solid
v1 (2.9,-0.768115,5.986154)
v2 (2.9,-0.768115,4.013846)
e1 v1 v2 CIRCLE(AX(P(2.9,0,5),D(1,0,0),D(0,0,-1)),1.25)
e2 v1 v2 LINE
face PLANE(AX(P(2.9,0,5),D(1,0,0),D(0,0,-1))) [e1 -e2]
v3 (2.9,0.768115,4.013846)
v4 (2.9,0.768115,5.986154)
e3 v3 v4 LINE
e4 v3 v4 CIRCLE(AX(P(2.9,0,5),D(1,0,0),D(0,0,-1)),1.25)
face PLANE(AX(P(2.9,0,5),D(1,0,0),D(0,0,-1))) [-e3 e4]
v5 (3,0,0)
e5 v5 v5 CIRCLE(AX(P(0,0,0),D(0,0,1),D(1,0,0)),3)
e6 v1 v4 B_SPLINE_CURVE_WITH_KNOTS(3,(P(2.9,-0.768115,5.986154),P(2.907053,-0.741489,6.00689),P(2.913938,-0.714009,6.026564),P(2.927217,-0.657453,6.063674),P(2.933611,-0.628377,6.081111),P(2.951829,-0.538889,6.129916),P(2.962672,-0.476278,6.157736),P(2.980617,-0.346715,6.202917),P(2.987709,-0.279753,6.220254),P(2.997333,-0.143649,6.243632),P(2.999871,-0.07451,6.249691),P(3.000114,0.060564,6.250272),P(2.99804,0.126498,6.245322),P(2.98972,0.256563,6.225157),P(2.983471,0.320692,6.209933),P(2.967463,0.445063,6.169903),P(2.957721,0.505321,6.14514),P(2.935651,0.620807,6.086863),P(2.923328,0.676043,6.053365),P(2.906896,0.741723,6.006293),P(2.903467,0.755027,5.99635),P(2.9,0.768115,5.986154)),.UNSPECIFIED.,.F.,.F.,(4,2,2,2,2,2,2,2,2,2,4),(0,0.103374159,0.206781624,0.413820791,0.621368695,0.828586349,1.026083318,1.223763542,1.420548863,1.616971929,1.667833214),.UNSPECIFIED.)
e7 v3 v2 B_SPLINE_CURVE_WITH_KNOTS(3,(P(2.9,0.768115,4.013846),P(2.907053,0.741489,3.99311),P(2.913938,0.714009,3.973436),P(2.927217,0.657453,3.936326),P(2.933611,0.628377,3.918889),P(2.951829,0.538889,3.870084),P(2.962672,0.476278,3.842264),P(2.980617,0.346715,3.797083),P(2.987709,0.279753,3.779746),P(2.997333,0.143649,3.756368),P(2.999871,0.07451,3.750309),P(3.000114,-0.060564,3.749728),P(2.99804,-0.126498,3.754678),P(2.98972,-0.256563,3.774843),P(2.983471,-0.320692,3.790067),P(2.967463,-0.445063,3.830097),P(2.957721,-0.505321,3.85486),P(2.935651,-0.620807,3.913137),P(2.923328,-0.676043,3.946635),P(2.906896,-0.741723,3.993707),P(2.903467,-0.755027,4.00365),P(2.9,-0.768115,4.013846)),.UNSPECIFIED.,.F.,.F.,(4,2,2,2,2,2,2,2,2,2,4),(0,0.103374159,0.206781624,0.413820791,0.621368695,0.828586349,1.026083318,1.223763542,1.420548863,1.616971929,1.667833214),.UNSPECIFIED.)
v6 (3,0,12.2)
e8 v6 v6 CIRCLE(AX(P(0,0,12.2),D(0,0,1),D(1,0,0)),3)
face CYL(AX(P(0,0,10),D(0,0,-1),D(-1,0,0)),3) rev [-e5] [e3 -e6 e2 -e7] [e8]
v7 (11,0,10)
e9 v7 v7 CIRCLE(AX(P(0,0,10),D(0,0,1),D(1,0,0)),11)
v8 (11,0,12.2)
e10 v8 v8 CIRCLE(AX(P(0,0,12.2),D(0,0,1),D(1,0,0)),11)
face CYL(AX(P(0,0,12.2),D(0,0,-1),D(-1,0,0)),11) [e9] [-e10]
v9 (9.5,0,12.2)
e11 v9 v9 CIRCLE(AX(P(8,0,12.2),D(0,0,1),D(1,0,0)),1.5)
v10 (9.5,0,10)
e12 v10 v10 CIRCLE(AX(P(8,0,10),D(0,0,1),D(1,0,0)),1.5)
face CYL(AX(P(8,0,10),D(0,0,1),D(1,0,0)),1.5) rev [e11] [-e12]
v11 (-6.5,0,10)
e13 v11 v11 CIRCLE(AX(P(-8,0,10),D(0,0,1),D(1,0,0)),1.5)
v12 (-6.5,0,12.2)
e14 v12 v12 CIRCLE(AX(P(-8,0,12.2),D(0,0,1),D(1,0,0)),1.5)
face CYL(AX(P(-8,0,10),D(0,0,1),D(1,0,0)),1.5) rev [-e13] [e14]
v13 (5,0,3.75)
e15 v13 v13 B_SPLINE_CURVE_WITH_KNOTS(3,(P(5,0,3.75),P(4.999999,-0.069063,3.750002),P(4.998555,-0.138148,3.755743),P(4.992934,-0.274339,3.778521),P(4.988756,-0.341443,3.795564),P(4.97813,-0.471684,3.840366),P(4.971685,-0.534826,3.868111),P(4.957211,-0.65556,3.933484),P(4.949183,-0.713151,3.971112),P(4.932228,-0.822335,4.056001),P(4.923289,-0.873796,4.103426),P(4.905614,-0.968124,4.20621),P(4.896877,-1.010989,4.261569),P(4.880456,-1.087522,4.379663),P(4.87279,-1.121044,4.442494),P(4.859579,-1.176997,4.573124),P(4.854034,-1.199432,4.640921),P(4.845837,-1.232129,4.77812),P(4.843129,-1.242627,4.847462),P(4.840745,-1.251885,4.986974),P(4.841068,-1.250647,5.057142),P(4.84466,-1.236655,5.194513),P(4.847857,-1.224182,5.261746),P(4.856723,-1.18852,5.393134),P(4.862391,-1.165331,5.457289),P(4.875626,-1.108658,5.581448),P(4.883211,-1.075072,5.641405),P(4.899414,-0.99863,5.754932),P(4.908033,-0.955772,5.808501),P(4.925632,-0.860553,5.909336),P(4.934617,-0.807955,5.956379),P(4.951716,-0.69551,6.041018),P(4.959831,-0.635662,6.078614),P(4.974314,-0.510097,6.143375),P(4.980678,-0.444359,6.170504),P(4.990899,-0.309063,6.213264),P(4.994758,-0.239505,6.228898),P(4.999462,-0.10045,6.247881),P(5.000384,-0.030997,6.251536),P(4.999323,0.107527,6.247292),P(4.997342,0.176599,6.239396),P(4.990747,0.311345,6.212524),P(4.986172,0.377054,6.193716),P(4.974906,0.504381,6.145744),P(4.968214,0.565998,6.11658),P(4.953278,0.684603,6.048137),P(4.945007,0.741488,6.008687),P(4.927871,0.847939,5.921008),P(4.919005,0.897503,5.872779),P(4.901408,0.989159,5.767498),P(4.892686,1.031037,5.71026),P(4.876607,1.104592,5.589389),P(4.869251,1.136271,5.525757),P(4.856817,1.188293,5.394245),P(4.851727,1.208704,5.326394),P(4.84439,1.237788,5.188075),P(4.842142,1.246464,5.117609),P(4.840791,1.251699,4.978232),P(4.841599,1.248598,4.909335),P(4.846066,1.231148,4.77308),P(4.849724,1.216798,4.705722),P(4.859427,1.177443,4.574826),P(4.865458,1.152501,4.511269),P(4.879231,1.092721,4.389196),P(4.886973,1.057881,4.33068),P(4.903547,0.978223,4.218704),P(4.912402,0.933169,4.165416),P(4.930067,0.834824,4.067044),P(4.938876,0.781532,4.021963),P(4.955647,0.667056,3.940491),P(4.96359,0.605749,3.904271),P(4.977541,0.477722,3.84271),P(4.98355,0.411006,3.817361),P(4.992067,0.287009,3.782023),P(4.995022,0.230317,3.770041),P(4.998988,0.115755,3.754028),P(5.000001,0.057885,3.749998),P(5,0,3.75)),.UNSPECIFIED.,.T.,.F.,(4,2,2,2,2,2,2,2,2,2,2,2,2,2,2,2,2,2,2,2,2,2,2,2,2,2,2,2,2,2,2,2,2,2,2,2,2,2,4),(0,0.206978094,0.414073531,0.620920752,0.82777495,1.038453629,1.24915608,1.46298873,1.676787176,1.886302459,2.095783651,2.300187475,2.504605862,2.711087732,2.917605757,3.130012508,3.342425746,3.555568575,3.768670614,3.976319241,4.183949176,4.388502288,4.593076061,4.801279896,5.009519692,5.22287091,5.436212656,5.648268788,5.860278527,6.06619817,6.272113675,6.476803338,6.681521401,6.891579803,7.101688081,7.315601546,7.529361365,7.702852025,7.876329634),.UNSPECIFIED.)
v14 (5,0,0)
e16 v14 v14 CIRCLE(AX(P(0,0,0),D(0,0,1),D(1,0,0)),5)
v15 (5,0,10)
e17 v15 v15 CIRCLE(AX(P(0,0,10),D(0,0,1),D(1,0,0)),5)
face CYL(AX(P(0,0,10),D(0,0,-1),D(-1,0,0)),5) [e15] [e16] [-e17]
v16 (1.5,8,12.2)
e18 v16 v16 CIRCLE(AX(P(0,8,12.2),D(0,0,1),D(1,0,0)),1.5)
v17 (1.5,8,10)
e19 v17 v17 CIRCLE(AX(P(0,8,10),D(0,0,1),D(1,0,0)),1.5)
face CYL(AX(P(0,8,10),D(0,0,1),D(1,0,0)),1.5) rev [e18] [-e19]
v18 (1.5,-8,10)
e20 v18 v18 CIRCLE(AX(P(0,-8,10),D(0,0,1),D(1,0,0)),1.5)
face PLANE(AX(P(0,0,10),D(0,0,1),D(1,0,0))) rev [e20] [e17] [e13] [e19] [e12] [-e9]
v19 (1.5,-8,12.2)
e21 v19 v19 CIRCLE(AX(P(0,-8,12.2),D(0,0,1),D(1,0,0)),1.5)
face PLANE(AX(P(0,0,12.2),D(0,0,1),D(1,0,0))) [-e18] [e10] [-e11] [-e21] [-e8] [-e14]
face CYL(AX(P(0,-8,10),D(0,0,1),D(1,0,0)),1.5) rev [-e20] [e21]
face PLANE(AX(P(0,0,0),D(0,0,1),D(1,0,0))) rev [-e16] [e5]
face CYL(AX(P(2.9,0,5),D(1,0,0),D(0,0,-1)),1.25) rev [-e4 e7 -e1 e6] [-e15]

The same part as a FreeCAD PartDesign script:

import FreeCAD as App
import Part
import Sketcher
Q = App.Units.Quantity

doc = App.newDocument("Part")
body = doc.addObject("PartDesign::Body", "Body")

# Sketch on XY plane
sketch1 = body.newObject("Sketcher::SketchObject", "Sketch")
sketch1.AttachmentSupport = (doc.getObject("XY_Plane"), [""])
sketch1.MapMode = "FlatFace"
sketch1.addGeometry([
    Part.Circle(App.Vector(0, 0, 0), App.Vector(0, 0, 1), 5),
    Part.Circle(App.Vector(0, 0, 0), App.Vector(0, 0, 1), 3),
], False)
sketch1.addConstraint([
    Sketcher.Constraint("Coincident", 0, 3, -1, 1),
    Sketcher.Constraint("Coincident", 1, 3, -1, 1),
    Sketcher.Constraint("Diameter", 0, Q("10 mm")),
    Sketcher.Constraint("Diameter", 1, Q("6 mm")),
])
pad1 = body.newObject("PartDesign::Pad", "Pad")
pad1.Profile = sketch1
pad1.Length = 10

# Sketch on XY plane
sketch2 = body.newObject("Sketcher::SketchObject", "Sketch001")
sketch2.AttachmentSupport = (doc.getObject("XY_Plane"), [""])
sketch2.MapMode = "FlatFace"
sketch2.AttachmentOffset = App.Placement(App.Vector(0, 0, 10), App.Rotation())
sketch2.addGeometry([
    Part.Circle(App.Vector(0, 0, 0), App.Vector(0, 0, 1), 11),
    Part.Circle(App.Vector(0, 0, 0), App.Vector(0, 0, 1), 3),
], False)
sketch2.addConstraint([
    Sketcher.Constraint("Coincident", 0, 3, -1, 1),
    Sketcher.Constraint("Coincident", 1, 3, -1, 1),
    Sketcher.Constraint("Diameter", 0, Q("22 mm")),
    Sketcher.Constraint("Diameter", 1, Q("6 mm")),
])
pad2 = body.newObject("PartDesign::Pad", "Pad001")
pad2.Profile = sketch2
pad2.Length = 2.2

# Sketch on XY plane
sketch3 = body.newObject("Sketcher::SketchObject", "Sketch002")
sketch3.AttachmentSupport = (doc.getObject("XY_Plane"), [""])
sketch3.MapMode = "FlatFace"
sketch3.AttachmentOffset = App.Placement(App.Vector(0, 0, 12.2), App.Rotation())
sketch3.addGeometry([
    Part.Circle(App.Vector(8, 0, 0), App.Vector(0, 0, 1), 1.5),
    Part.Circle(App.Vector(0, 8, 0), App.Vector(0, 0, 1), 1.5),
    Part.Circle(App.Vector(-8, 0, 0), App.Vector(0, 0, 1), 1.5),
    Part.Circle(App.Vector(0, -8, 0), App.Vector(0, 0, 1), 1.5),
], False)
sketch3.addConstraint([
    Sketcher.Constraint("Equal", 0, 1),
    Sketcher.Constraint("Equal", 1, 2),
    Sketcher.Constraint("Equal", 2, 3),
    Sketcher.Constraint("Symmetric", 0, 3, 2, 3, -1, 1),
    Sketcher.Constraint("Symmetric", 1, 3, 3, 3, -1, 1),
    Sketcher.Constraint("PointOnObject", 0, 3, -1),
    Sketcher.Constraint("PointOnObject", 1, 3, -2),
    Sketcher.Constraint("Diameter", 0, Q("3 mm")),
    Sketcher.Constraint("DistanceX", -1, 1, 0, 3, Q("8 mm")),
    Sketcher.Constraint("DistanceY", -1, 1, 1, 3, Q("8 mm")),
])
pocket1 = body.newObject("PartDesign::Pocket", "Pocket")
pocket1.Profile = sketch3
pocket1.Length = 2.2

# Sketch on YZ plane
sketch4 = body.newObject("Sketcher::SketchObject", "Sketch003")
sketch4.AttachmentSupport = (doc.getObject("YZ_Plane"), [""])
sketch4.MapMode = "FlatFace"
sketch4.AttachmentOffset = App.Placement(App.Vector(0, 0, 5), App.Rotation())
sketch4.addGeometry(Part.Circle(App.Vector(0, 5, 0), App.Vector(0, 0, 1), 1.25), False)
sketch4.addConstraint([
    Sketcher.Constraint("PointOnObject", 0, 3, -2),
    Sketcher.Constraint("Diameter", 0, Q("2.5 mm")),
    Sketcher.Constraint("DistanceY", -1, 1, 0, 3, Q("5 mm")),
])
pocket2 = body.newObject("PartDesign::Pocket", "Pocket001")
pocket2.Profile = sketch4
pocket2.Length = 2.1

doc.recompute()
